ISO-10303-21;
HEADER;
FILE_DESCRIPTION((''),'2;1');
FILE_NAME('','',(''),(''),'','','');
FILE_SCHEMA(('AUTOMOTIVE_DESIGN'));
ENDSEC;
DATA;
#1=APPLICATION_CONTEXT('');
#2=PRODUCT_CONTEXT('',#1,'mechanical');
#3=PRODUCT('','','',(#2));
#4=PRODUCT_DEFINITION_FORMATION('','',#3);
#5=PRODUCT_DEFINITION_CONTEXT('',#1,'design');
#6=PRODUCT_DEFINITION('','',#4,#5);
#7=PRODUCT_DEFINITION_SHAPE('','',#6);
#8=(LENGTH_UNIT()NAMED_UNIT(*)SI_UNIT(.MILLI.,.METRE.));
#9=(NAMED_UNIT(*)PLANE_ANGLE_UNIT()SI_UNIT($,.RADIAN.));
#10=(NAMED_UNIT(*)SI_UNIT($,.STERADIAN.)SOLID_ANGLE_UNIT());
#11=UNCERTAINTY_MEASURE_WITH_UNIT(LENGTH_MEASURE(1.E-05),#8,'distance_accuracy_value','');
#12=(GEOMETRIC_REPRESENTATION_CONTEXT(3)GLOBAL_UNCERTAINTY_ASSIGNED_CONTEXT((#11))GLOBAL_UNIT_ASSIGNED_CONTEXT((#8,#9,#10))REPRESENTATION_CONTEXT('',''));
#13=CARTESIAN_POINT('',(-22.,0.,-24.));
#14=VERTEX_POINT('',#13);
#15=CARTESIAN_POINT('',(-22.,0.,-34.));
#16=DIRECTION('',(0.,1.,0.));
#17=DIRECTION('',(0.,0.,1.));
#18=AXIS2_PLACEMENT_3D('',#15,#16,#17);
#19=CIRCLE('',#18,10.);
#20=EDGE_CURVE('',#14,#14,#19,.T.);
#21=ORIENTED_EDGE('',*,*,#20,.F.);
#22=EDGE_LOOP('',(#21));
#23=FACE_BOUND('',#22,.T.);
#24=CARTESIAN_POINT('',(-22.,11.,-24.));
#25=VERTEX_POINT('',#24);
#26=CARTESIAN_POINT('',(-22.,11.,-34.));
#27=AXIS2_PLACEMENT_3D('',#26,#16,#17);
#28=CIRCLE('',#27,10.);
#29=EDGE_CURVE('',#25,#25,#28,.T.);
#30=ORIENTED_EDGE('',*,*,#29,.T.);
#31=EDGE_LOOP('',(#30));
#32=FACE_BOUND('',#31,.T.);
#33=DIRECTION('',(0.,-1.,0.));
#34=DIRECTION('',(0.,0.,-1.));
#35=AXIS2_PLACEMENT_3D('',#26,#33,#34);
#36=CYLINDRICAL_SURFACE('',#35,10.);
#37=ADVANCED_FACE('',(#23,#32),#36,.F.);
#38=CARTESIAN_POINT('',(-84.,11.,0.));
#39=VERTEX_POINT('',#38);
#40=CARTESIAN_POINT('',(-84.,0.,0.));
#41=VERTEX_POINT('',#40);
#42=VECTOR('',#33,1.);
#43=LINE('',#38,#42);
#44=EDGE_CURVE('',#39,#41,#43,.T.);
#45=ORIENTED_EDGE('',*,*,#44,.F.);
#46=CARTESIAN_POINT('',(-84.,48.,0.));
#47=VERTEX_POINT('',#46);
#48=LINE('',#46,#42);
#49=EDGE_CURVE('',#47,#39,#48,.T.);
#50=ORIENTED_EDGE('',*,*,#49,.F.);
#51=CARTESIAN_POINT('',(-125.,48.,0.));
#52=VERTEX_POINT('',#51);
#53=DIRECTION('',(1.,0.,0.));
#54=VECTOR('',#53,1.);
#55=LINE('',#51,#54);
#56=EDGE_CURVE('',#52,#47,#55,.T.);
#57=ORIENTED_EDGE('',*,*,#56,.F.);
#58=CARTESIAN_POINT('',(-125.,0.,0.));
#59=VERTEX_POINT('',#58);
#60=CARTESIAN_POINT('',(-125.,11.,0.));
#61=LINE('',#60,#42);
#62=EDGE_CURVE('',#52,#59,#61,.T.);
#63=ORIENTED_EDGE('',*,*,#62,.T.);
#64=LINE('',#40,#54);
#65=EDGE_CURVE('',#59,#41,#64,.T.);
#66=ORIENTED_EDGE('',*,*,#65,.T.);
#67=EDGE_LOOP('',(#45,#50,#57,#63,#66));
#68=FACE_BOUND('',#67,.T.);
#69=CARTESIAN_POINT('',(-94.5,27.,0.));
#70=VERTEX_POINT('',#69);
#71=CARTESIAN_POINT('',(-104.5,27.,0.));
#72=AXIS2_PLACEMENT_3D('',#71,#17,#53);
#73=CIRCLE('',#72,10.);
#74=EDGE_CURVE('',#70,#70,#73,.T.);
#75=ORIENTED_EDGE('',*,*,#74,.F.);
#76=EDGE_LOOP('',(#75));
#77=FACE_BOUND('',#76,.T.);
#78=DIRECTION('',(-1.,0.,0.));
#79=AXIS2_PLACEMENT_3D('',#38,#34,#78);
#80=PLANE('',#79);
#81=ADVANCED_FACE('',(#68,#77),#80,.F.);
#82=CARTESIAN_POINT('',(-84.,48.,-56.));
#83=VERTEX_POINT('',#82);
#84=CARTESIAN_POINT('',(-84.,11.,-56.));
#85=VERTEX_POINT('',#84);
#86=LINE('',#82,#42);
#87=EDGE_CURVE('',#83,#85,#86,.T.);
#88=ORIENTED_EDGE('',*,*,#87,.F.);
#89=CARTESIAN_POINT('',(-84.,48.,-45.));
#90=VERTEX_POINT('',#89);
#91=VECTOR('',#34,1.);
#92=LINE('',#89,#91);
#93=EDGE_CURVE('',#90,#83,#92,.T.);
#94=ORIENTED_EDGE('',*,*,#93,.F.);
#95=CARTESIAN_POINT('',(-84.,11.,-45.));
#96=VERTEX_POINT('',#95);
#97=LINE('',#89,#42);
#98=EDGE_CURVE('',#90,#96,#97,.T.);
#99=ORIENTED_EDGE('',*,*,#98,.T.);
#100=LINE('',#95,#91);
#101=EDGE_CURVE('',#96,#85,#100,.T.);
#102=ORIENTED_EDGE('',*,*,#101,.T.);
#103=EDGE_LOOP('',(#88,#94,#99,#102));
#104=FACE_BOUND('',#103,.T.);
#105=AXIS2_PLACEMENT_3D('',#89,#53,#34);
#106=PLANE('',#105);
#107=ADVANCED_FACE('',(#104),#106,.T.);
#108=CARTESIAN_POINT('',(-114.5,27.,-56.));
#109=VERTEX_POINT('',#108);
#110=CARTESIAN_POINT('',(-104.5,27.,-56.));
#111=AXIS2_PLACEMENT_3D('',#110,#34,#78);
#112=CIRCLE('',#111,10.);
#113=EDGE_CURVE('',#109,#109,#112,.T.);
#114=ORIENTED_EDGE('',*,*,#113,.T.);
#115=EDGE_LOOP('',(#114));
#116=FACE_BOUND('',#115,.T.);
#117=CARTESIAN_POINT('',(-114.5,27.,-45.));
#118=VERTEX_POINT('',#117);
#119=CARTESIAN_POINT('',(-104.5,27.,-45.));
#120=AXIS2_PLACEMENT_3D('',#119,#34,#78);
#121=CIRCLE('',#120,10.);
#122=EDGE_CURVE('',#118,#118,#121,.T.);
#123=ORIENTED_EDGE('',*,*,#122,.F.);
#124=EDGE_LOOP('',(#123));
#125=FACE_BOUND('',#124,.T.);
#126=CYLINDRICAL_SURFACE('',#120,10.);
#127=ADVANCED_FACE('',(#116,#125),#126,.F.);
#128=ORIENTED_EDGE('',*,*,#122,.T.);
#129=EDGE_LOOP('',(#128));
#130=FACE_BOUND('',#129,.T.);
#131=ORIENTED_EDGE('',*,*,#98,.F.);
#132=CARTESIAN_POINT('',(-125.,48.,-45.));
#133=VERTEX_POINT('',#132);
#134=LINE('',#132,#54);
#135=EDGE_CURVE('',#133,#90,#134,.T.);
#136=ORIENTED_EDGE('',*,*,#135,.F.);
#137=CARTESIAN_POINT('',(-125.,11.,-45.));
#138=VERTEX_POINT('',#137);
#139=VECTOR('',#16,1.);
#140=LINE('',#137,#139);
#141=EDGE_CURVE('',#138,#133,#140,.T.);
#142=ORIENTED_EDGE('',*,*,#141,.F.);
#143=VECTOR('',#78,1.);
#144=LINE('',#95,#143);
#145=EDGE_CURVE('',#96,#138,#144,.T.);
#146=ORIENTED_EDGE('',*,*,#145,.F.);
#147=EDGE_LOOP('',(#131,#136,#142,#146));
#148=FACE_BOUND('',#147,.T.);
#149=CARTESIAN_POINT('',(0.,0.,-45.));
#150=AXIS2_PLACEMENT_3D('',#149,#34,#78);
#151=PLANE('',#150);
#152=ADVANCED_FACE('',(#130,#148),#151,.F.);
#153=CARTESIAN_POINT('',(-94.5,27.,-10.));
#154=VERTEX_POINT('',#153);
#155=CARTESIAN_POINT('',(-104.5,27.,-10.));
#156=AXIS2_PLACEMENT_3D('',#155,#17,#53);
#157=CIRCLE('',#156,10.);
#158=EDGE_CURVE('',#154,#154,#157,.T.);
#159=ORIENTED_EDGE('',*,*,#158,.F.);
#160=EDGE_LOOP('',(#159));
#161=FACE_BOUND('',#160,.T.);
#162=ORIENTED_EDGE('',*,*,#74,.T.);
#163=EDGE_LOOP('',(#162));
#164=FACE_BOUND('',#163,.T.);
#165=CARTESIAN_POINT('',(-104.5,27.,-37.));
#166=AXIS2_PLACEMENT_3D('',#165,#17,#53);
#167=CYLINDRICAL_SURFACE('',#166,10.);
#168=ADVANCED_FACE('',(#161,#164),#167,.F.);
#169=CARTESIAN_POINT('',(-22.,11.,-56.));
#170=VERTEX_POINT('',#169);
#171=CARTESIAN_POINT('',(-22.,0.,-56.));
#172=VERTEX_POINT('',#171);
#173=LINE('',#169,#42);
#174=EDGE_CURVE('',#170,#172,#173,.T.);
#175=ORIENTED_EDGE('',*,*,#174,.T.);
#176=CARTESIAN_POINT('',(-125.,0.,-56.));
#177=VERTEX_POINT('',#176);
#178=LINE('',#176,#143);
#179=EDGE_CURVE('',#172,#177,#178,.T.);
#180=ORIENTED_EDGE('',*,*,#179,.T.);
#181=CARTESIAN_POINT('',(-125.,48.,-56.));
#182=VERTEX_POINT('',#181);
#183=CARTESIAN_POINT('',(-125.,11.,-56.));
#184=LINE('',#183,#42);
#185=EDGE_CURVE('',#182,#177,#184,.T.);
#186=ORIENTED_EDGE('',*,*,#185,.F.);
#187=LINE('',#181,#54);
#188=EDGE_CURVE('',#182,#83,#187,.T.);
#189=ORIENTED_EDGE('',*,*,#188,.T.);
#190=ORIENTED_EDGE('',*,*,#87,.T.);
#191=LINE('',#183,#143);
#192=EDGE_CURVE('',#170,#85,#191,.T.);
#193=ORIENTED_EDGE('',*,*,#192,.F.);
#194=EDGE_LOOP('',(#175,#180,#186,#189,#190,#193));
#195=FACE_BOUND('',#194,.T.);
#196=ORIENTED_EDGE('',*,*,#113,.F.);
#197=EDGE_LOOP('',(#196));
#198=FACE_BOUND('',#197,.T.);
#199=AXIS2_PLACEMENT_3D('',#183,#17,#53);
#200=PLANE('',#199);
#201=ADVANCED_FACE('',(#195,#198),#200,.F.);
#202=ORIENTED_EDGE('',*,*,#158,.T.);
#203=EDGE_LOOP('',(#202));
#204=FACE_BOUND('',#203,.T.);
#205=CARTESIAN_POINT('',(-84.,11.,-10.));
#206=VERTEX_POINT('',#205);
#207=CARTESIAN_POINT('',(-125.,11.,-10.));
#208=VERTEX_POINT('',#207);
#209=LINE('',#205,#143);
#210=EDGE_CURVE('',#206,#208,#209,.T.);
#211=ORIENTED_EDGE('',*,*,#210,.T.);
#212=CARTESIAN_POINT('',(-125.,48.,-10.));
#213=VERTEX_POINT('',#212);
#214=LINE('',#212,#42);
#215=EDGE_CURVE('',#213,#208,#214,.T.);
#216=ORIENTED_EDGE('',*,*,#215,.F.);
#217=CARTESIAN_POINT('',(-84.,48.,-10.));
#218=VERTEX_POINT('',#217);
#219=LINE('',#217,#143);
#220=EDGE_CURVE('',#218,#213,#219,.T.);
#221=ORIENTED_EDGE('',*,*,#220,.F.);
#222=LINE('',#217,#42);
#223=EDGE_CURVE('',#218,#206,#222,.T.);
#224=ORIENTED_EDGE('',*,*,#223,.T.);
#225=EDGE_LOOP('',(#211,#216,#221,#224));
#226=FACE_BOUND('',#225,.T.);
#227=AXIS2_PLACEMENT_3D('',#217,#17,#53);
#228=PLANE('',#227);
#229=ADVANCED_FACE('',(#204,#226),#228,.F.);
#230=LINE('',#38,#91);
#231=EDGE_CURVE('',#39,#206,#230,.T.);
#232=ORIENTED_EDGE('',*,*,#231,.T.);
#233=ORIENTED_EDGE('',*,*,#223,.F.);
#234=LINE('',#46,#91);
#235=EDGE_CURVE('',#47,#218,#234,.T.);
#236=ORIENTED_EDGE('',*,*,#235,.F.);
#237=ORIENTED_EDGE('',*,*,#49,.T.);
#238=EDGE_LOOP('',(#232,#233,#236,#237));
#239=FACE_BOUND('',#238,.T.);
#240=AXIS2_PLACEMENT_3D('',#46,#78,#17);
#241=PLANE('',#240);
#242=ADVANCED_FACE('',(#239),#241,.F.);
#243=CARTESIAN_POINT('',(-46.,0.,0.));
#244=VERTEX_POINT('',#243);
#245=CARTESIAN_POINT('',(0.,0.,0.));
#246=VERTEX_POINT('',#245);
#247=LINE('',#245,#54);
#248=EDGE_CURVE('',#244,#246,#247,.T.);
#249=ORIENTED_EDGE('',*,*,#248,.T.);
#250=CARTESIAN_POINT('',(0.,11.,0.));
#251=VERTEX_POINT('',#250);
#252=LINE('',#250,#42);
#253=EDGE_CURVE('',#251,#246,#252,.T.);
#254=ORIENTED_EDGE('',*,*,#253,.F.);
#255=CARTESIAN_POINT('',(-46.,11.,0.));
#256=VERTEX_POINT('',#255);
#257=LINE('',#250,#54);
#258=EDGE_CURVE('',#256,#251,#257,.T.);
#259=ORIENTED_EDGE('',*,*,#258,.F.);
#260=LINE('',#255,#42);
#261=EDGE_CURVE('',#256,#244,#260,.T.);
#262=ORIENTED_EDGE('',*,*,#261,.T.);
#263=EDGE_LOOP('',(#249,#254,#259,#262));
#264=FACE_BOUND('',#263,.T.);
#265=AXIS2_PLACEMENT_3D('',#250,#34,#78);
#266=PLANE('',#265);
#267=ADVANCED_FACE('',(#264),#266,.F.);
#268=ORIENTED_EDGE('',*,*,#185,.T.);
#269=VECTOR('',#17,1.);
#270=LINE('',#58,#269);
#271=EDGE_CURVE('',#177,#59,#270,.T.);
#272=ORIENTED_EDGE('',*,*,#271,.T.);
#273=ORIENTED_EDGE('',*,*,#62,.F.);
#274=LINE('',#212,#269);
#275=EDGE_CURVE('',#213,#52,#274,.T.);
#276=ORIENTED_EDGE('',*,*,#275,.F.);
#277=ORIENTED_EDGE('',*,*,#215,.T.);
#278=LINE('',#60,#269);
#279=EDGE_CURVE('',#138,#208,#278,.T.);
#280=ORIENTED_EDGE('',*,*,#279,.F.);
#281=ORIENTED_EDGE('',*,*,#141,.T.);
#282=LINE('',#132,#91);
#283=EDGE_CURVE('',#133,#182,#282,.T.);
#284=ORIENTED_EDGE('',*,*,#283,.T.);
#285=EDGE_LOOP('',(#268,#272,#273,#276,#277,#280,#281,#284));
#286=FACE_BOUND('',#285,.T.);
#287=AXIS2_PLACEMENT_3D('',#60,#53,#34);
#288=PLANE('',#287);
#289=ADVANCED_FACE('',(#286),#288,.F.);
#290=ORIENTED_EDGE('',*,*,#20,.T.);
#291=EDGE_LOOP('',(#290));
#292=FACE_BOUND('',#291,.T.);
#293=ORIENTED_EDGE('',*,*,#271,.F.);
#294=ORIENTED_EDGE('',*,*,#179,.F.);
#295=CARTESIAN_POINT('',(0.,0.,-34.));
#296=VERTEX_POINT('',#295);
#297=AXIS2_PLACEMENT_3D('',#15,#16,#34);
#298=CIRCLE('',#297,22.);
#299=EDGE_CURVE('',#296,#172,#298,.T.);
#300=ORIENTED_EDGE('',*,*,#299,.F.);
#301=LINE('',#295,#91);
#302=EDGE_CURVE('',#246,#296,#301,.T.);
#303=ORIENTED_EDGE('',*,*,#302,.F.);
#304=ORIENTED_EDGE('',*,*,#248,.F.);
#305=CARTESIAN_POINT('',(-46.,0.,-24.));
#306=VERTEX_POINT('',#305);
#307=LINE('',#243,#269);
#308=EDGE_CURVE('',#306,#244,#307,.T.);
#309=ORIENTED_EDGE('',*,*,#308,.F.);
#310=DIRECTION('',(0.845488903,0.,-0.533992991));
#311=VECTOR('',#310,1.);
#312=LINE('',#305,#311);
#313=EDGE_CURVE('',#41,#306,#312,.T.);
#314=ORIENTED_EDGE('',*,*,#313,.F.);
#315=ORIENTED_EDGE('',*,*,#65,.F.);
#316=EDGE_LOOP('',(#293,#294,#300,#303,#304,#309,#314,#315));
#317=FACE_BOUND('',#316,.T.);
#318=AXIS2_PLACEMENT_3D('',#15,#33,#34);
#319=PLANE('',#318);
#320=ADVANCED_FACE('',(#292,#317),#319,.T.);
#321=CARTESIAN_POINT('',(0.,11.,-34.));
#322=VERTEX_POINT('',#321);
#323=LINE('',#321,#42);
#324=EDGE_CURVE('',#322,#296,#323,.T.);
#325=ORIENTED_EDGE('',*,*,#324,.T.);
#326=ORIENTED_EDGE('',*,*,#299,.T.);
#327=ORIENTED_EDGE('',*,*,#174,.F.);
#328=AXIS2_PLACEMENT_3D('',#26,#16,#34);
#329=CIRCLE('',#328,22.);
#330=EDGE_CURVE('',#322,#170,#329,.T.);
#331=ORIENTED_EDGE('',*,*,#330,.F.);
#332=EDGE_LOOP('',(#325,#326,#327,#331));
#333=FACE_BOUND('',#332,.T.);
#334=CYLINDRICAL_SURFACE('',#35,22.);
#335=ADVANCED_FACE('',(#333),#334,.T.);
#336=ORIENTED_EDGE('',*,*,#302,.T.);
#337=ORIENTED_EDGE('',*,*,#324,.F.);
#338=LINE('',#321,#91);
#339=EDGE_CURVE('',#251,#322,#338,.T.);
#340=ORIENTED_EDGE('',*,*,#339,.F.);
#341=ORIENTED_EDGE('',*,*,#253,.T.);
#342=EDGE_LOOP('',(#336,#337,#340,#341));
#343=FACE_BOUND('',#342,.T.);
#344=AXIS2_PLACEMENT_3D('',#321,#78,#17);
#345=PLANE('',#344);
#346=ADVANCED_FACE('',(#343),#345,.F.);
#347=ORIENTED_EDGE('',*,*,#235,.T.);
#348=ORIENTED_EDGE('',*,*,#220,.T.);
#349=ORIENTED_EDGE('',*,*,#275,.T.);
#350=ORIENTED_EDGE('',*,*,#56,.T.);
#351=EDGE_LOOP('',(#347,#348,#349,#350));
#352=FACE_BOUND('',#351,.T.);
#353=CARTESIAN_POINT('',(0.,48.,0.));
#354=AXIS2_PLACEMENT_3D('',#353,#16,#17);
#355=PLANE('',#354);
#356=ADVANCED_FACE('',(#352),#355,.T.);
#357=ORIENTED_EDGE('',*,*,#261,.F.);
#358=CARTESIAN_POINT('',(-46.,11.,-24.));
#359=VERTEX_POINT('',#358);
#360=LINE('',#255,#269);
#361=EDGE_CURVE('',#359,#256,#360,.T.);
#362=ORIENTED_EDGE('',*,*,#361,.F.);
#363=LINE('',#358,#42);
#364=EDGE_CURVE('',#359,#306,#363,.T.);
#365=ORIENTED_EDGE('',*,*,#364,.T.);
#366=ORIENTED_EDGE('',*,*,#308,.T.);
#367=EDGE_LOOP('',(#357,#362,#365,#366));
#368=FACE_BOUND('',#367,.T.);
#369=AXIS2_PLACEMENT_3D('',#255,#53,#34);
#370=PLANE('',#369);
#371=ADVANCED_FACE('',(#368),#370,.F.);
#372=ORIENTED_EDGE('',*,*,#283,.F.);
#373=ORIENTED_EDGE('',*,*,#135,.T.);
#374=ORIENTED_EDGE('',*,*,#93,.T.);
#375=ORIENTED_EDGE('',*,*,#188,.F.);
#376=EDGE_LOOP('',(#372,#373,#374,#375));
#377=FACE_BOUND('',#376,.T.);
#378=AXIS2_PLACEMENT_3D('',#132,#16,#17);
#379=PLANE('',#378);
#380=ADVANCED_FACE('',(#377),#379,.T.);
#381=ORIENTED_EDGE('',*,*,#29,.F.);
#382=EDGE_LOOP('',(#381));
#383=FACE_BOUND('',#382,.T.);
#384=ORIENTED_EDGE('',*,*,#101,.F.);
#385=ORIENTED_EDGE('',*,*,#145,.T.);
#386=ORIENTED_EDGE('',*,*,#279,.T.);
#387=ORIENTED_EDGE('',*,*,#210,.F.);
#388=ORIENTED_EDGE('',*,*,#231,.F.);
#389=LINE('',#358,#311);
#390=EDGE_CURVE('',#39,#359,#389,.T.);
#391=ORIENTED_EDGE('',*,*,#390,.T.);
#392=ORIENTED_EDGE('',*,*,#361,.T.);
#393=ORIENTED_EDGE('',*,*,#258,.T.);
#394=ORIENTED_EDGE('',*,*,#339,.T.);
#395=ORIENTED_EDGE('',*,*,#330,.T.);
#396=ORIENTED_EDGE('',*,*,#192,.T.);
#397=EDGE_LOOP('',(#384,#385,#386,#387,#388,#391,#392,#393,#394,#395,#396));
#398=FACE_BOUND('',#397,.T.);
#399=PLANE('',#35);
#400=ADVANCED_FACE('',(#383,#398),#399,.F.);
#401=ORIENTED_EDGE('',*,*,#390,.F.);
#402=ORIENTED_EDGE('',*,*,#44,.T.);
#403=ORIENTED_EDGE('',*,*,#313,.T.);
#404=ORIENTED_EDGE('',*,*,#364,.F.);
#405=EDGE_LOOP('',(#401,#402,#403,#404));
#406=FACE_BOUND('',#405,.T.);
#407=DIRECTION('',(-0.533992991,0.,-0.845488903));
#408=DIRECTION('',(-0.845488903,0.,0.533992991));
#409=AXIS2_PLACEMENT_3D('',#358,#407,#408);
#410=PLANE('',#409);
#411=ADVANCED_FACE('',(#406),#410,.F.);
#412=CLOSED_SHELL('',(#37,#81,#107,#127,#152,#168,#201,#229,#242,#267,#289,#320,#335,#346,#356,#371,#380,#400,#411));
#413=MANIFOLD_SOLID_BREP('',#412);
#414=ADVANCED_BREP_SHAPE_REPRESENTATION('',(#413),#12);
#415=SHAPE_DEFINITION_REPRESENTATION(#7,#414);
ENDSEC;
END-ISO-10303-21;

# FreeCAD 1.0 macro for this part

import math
import FreeCAD as App
import Part
import Sketcher
from FreeCAD import Vector
Q = App.Units.Quantity


def add_polygon(sketch, points):
    """Adds a closed chain of lines whose ends are joined by coincident constraints."""
    first, n = sketch.GeometryCount, len(points)
    for a, b in zip(points, points[1:] + points[:1]):
        sketch.addGeometry(Part.LineSegment(App.Vector(*a, 0), App.Vector(*b, 0)), False)
    for i in range(n):
        sketch.addConstraint(Sketcher.Constraint("Coincident", first + i, 2, first + (i + 1) % n, 1))

doc = App.newDocument("Part")
body = doc.addObject("PartDesign::Body", "Body")

# Sketch on XZ plane
sketch1 = body.newObject("Sketcher::SketchObject", "Sketch")
sketch1.AttachmentSupport = (doc.getObject("XZ_Plane"), [""])
sketch1.MapMode = "FlatFace"
sketch1.addGeometry([
    Part.LineSegment(Vector(-46, 0, 0), Vector(0, 0, 0)),  # 0
    Part.LineSegment(Vector(0, 0, 0), Vector(0, -34, 0)),  # 1
    Part.ArcOfCircle(Part.Circle(Vector(-22, -34, 0), Vector(0, 0, 1), 22), math.radians(-90), math.radians(0)),  # 2
    Part.LineSegment(Vector(-22, -56, 0), Vector(-125, -56, 0)),  # 3
    Part.LineSegment(Vector(-125, -56, 0), Vector(-125, 0, 0)),  # 4
    Part.LineSegment(Vector(-125, 0, 0), Vector(-84, 0, 0)),  # 5
    Part.LineSegment(Vector(-84, 0, 0), Vector(-46, -24, 0)),  # 6
    Part.LineSegment(Vector(-46, -24, 0), Vector(-46, 0, 0)),  # 7
    Part.Circle(Vector(-22, -34, 0), Vector(0, 0, 1), 10),  # 8
], False)
sketch1.addConstraint([
    Sketcher.Constraint("Coincident", 0, 2, 1, 1),
    Sketcher.Constraint("Tangent", 1, 2, 2, 2),
    Sketcher.Constraint("Tangent", 2, 1, 3, 1),
    Sketcher.Constraint("Coincident", 3, 2, 4, 1),
    Sketcher.Constraint("Coincident", 4, 2, 5, 1),
    Sketcher.Constraint("Coincident", 5, 2, 6, 1),
    Sketcher.Constraint("Coincident", 6, 2, 7, 1),
    Sketcher.Constraint("Coincident", 7, 2, 0, 1),
    Sketcher.Constraint("Horizontal", 0),
    Sketcher.Constraint("Vertical", 1),
    Sketcher.Constraint("Horizontal", 3),
    Sketcher.Constraint("Vertical", 4),
    Sketcher.Constraint("Horizontal", 5),
    Sketcher.Constraint("Vertical", 7),
    Sketcher.Constraint("Coincident", 0, 2, -1, 1),
    Sketcher.Constraint("Coincident", 8, 3, 2, 3),
    Sketcher.Constraint("PointOnObject", 4, 2, -1),
    Sketcher.Constraint("Diameter", 8, Q("20 mm")),
    Sketcher.Constraint("Radius", 2, Q("22 mm")),
    Sketcher.Constraint("DistanceX", 0, 1, 0, 2, Q("46 mm")),
    Sketcher.Constraint("DistanceX", 3, 2, 3, 1, Q("103 mm")),
    Sketcher.Constraint("DistanceX", 5, 1, 5, 2, Q("41 mm")),
    Sketcher.Constraint("DistanceY", 1, 2, 1, 1, Q("34 mm")),
    Sketcher.Constraint("DistanceY", 7, 1, 7, 2, Q("24 mm")),
])
pad1 = body.newObject("PartDesign::Pad", "Pad")
pad1.Profile = sketch1
pad1.Length = 11
pad1.Reversed = True

# Sketch on XZ plane
sketch2 = body.newObject("Sketcher::SketchObject", "Sketch001")
sketch2.AttachmentSupport = (doc.getObject("XZ_Plane"), [""])
sketch2.MapMode = "FlatFace"
sketch2.AttachmentOffset = App.Placement(Vector(0, 0, -11), App.Rotation())
add_polygon(sketch2, [(-125, -10), (-125, 0), (-84, 0), (-84, -10)])  # lines 0-3
sketch2.addConstraint([
    Sketcher.Constraint("Vertical", 0),
    Sketcher.Constraint("Horizontal", 1),
    Sketcher.Constraint("Vertical", 2),
    Sketcher.Constraint("Horizontal", 3),
    Sketcher.Constraint("PointOnObject", 0, 2, -1),
    Sketcher.Constraint("DistanceX", 1, 1, 1, 2, Q("41 mm")),
    Sketcher.Constraint("DistanceY", 0, 1, 0, 2, Q("10 mm")),
    Sketcher.Constraint("DistanceX", 0, 2, -1, 1, Q("125 mm")),
])
pad2 = body.newObject("PartDesign::Pad", "Pad001")
pad2.Profile = sketch2
pad2.Length = 37
pad2.Reversed = True

# Sketch on XY plane
sketch3 = body.newObject("Sketcher::SketchObject", "Sketch002")
sketch3.AttachmentSupport = (doc.getObject("XY_Plane"), [""])
sketch3.MapMode = "FlatFace"
sketch3.addGeometry(Part.Circle(Vector(-104, 27, 0), Vector(0, 0, 1), 10), False)
sketch3.addConstraint([
    Sketcher.Constraint("Diameter", 0, Q("20 mm")),
    Sketcher.Constraint("DistanceY", -1, 1, 0, 3, Q("27 mm")),
    Sketcher.Constraint("DistanceX", 0, 3, -1, 1, Q("104.5 mm")),
])
pocket1 = body.newObject("PartDesign::Pocket", "Pocket")
pocket1.Profile = sketch3
pocket1.Length = 37

# Sketch on XY plane
sketch4 = body.newObject("Sketcher::SketchObject", "Sketch003")
sketch4.AttachmentSupport = (doc.getObject("XY_Plane"), [""])
sketch4.MapMode = "FlatFace"
sketch4.AttachmentOffset = App.Placement(Vector(0, 0, -45), App.Rotation())
add_polygon(sketch4, [(-84, 48), (-84, 11), (-125, 11), (-125, 48)])  # lines 0-3
sketch4.addGeometry(Part.Circle(Vector(-104, 27, 0), Vector(0, 0, 1), 10), False)  # 4
sketch4.addConstraint([
    Sketcher.Constraint("Vertical", 0),
    Sketcher.Constraint("Horizontal", 1),
    Sketcher.Constraint("Vertical", 2),
    Sketcher.Constraint("Horizontal", 3),
    Sketcher.Constraint("Diameter", 4, Q("20 mm")),
    Sketcher.Constraint("DistanceX", 1, 2, 1, 1, Q("41 mm")),
    Sketcher.Constraint("DistanceY", 0, 2, 0, 1, Q("37 mm")),
    Sketcher.Constraint("DistanceY", -1, 1, 4, 3, Q("27 mm")),
    Sketcher.Constraint("DistanceX", 0, 2, -1, 1, Q("84 mm")),
    Sketcher.Constraint("DistanceY", -1, 1, 0, 2, Q("11 mm")),
    Sketcher.Constraint("DistanceX", 4, 3, -1, 1, Q("104.5 mm")),
])
pad3 = body.newObject("PartDesign::Pad", "Pad002")
pad3.Profile = sketch4
pad3.Length = 11
pad3.Reversed = True

doc.recompute()
